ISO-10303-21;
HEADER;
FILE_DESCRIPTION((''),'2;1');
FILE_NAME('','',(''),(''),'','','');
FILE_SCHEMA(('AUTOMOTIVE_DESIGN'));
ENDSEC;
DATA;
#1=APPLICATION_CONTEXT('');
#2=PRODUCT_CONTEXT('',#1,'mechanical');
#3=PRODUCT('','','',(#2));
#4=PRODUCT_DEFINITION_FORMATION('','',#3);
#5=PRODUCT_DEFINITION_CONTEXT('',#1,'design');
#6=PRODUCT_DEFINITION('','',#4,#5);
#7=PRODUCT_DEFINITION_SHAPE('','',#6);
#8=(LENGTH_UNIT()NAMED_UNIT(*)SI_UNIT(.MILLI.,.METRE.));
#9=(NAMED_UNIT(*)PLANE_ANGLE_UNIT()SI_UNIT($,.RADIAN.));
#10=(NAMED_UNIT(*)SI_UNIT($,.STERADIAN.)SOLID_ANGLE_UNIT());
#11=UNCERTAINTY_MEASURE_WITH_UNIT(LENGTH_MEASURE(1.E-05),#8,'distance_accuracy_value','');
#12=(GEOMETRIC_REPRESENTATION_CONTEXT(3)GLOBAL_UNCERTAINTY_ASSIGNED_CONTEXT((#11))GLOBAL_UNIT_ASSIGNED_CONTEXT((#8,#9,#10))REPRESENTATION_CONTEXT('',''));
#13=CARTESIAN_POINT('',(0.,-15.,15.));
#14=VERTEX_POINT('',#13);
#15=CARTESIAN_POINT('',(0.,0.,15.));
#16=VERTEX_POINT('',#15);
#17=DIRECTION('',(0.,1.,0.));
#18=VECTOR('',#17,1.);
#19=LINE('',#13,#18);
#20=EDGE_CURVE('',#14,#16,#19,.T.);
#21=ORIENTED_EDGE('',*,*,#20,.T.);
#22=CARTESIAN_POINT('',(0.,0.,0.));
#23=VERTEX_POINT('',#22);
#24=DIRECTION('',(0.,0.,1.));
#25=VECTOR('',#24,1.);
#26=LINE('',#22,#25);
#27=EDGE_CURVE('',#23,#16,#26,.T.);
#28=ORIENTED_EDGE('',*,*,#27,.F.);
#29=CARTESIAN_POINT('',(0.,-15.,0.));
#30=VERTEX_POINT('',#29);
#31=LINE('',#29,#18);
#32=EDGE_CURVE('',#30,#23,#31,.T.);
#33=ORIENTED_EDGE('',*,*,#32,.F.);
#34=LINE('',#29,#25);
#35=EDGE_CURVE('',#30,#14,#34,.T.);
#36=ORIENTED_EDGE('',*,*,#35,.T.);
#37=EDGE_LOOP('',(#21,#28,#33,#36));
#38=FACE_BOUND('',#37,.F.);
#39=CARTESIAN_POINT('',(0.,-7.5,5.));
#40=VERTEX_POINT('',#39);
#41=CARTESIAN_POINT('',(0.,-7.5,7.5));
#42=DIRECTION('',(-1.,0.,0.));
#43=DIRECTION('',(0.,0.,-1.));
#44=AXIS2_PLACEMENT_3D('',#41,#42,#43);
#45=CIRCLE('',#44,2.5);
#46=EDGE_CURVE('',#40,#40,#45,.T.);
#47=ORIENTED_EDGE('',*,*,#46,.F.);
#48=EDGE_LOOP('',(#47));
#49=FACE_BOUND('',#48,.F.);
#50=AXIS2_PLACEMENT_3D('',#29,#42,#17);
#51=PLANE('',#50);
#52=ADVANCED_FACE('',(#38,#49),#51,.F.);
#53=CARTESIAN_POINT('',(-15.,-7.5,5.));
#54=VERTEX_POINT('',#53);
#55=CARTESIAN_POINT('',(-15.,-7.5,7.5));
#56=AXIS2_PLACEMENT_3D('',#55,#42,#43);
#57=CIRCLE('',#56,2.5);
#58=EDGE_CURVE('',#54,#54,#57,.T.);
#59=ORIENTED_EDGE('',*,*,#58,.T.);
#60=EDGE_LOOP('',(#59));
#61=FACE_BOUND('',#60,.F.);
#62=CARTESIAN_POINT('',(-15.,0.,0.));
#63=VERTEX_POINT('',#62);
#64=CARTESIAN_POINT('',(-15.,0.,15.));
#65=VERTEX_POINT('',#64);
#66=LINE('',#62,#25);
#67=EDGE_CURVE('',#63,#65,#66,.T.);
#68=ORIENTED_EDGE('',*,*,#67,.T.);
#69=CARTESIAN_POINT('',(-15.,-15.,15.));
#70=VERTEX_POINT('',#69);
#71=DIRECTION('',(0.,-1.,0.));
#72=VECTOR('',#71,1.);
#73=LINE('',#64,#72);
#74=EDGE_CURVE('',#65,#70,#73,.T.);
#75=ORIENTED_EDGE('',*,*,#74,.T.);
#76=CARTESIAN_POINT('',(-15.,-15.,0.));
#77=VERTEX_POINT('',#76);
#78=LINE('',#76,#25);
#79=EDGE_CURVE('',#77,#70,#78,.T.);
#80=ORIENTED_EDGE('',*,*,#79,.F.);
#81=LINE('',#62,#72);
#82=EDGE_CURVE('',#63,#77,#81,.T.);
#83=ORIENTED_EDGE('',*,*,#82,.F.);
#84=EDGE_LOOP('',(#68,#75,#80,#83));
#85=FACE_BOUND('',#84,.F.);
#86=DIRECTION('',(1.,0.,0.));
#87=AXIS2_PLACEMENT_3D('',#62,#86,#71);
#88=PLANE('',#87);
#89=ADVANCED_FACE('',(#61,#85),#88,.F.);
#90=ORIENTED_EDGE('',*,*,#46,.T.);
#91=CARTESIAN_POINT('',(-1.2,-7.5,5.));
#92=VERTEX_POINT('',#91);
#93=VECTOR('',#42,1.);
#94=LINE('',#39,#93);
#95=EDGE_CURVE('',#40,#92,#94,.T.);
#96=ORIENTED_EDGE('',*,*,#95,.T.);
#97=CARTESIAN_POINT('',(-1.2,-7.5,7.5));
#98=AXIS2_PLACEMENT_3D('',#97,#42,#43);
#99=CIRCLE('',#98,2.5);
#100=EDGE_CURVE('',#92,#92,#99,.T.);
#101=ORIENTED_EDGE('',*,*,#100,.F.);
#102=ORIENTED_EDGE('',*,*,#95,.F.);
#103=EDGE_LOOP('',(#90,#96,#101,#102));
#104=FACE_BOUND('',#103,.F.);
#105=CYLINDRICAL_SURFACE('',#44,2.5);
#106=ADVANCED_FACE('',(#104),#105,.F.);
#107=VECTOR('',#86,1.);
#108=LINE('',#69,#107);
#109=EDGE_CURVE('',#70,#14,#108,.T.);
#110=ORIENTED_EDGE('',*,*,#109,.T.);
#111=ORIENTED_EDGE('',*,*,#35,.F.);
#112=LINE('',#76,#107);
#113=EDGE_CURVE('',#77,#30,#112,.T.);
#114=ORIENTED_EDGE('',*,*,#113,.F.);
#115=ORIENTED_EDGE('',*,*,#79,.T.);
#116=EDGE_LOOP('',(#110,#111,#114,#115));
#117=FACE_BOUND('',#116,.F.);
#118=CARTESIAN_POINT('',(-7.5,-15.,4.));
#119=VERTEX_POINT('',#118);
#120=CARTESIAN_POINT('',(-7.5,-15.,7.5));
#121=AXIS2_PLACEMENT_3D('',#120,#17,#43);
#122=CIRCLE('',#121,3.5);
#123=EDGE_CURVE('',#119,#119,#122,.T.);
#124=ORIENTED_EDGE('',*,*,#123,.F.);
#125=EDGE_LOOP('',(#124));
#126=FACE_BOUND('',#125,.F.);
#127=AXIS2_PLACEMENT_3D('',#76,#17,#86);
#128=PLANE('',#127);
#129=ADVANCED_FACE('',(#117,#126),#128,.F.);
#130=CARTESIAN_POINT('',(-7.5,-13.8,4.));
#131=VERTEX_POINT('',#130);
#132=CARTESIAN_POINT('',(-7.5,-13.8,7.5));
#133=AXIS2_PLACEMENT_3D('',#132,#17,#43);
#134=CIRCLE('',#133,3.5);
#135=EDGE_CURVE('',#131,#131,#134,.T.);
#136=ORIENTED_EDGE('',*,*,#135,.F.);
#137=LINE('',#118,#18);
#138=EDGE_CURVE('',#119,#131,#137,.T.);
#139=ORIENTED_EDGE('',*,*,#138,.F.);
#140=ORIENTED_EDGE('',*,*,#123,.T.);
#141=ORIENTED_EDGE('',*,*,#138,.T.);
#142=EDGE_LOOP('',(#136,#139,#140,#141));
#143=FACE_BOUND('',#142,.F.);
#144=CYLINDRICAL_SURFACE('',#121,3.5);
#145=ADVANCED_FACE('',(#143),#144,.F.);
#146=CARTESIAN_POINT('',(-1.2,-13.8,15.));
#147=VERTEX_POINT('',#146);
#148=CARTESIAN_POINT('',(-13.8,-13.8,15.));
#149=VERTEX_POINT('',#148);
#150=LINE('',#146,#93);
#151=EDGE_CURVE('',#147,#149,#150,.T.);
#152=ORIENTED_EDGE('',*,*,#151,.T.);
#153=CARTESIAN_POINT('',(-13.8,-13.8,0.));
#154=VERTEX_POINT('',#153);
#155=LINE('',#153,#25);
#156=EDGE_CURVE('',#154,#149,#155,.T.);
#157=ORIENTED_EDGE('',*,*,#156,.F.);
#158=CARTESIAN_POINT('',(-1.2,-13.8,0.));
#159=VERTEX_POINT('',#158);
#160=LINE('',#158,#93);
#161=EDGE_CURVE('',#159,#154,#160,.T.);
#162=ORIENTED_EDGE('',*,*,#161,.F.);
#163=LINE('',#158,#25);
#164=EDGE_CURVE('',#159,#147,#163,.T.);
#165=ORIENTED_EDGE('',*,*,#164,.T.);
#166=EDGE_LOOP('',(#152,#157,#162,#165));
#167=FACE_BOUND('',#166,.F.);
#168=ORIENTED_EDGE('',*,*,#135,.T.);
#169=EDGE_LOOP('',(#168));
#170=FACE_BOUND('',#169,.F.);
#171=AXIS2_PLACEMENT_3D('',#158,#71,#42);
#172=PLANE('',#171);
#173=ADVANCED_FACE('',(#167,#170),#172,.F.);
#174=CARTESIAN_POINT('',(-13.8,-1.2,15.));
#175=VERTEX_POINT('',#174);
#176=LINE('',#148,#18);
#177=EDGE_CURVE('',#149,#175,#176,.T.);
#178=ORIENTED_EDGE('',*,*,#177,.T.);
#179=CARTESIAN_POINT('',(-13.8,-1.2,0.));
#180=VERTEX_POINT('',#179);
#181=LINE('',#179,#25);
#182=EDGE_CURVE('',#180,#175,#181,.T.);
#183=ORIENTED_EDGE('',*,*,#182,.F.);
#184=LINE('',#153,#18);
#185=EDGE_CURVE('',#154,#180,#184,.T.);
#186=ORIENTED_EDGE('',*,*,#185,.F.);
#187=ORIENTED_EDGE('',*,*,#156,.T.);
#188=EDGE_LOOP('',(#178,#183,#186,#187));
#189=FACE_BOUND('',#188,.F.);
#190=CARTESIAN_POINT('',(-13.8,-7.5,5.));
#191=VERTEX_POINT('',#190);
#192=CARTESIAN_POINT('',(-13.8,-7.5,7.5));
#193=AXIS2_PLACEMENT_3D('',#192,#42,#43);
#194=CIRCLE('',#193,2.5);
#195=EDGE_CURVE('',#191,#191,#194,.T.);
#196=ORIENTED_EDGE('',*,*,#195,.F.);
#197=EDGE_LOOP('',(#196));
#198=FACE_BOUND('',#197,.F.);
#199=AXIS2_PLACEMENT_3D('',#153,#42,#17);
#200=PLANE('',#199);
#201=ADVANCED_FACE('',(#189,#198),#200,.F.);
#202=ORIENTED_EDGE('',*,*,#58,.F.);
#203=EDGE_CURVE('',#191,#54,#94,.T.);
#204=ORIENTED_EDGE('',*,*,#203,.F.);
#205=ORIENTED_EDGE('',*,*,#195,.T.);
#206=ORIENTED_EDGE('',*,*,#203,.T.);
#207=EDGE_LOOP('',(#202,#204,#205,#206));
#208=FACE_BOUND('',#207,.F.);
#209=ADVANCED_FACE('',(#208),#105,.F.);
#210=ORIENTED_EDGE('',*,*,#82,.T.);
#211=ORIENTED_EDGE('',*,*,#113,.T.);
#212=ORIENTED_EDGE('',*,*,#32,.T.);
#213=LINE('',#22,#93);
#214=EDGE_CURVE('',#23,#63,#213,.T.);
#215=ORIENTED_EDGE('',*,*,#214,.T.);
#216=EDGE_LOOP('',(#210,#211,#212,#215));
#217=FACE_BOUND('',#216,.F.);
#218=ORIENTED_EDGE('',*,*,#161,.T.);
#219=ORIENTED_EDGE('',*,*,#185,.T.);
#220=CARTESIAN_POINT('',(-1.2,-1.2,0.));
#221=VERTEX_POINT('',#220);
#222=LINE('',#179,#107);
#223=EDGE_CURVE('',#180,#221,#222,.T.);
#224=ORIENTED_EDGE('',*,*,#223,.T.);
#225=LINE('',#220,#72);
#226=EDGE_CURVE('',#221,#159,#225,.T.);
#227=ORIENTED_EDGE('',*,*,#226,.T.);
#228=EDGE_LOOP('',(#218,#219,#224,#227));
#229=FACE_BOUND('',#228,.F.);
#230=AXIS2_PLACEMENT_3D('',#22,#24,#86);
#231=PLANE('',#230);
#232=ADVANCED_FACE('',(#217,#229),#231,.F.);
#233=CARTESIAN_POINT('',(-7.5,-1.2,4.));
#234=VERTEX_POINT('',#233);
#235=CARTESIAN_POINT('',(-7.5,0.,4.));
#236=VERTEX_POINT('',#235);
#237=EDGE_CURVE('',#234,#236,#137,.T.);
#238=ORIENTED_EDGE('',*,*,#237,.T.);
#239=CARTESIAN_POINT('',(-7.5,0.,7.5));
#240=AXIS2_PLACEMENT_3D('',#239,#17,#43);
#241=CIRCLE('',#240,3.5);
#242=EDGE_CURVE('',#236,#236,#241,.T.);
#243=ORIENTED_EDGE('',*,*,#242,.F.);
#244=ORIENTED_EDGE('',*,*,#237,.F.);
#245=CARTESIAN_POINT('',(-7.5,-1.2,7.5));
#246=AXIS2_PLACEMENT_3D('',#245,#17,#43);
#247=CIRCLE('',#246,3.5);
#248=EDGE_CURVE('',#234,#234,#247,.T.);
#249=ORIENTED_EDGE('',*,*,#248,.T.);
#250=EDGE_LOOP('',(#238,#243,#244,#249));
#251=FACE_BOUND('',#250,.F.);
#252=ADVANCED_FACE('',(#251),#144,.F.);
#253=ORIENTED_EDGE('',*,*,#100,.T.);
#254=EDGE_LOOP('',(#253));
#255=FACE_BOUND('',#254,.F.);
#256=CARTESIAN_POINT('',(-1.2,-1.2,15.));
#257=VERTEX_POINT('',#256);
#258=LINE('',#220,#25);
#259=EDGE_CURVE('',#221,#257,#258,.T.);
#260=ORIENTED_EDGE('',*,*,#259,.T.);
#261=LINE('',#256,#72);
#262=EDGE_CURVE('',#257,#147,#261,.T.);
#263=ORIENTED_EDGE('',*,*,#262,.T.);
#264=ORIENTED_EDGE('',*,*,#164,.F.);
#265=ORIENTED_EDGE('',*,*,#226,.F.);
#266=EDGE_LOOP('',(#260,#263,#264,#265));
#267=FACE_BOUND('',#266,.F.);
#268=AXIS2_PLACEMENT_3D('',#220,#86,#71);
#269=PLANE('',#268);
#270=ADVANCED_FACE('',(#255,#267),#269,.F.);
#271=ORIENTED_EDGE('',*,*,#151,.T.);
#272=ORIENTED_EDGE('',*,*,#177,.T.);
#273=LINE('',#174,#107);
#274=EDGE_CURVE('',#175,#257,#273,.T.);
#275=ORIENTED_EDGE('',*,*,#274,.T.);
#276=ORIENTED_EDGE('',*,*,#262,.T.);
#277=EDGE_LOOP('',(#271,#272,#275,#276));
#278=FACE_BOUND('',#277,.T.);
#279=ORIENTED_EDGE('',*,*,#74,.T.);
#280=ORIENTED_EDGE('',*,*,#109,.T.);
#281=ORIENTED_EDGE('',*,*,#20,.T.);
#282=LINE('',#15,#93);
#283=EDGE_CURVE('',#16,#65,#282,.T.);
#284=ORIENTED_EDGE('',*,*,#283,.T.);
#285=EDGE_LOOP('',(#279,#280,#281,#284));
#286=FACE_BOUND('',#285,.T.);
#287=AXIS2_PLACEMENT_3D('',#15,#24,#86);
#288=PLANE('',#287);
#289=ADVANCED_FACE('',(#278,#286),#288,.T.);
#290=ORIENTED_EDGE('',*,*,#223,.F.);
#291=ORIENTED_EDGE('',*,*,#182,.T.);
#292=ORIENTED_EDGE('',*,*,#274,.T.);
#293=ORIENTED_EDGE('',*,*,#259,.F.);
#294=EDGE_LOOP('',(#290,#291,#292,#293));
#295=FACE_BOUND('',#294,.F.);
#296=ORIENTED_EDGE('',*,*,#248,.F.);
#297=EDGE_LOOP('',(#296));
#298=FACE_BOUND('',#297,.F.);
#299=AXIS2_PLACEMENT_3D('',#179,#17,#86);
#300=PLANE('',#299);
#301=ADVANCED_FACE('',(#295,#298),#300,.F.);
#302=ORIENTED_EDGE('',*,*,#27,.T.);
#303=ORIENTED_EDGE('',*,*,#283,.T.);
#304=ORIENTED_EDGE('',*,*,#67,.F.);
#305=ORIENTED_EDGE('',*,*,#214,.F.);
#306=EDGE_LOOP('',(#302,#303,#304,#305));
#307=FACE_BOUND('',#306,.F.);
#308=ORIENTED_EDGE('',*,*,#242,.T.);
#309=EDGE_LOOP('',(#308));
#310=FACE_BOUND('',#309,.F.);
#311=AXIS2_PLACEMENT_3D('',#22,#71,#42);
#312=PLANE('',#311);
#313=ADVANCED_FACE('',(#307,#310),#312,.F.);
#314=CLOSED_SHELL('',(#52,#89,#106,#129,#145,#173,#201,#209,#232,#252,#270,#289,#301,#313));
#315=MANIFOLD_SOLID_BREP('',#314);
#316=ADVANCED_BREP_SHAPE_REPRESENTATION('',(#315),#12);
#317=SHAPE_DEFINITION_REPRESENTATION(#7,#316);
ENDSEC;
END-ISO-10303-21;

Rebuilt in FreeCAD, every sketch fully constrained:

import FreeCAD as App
import Part
import Sketcher
from FreeCAD import Vector

doc = App.newDocument("Part")
body = doc.addObject("PartDesign::Body", "Body")

sketch1 = body.newObject("Sketcher::SketchObject", "Sketch")
sketch1.AttachmentSupport = (doc.getObject("XY_Plane"), [""])
sketch1.MapMode = "FlatFace"
sketch1.addGeometry([
    Part.LineSegment(Vector(0, -15, 0), Vector(0, 0, 0)),
    Part.LineSegment(Vector(0, 0, 0), Vector(-15, 0, 0)),
    Part.LineSegment(Vector(-15, 0, 0), Vector(-15, -15, 0)),
    Part.LineSegment(Vector(-15, -15, 0), Vector(0, -15, 0)),
    Part.LineSegment(Vector(-14, -14, 0), Vector(-14, -1, 0)),
    Part.LineSegment(Vector(-14, -1, 0), Vector(-1, -1, 0)),
    Part.LineSegment(Vector(-1, -1, 0), Vector(-1, -14, 0)),
    Part.LineSegment(Vector(-1, -14, 0), Vector(-14, -14, 0)),
], False)
sketch1.addConstraint([
    Sketcher.Constraint("Coincident", 0, 2, 1, 1),
    Sketcher.Constraint("Coincident", 1, 2, 2, 1),
    Sketcher.Constraint("Coincident", 2, 2, 3, 1),
    Sketcher.Constraint("Coincident", 3, 2, 0, 1),
    Sketcher.Constraint("Coincident", 4, 2, 5, 1),
    Sketcher.Constraint("Coincident", 5, 2, 6, 1),
    Sketcher.Constraint("Coincident", 6, 2, 7, 1),
    Sketcher.Constraint("Coincident", 7, 2, 4, 1),
    Sketcher.Constraint("Vertical", 0),
    Sketcher.Constraint("Horizontal", 1),
    Sketcher.Constraint("Vertical", 2),
    Sketcher.Constraint("Horizontal", 3),
    Sketcher.Constraint("Vertical", 4),
    Sketcher.Constraint("Horizontal", 5),
    Sketcher.Constraint("Vertical", 6),
    Sketcher.Constraint("Horizontal", 7),
    Sketcher.Constraint("Coincident", 0, 2, -1, 1),
    Sketcher.Constraint("Equal", 3, 0),
    Sketcher.Constraint("Equal", 7, 4),
    Sketcher.Constraint("DistanceX", 1, 2, 1, 1, 15.0),
    Sketcher.Constraint("DistanceY", 4, 2, -1, 1, 1.2),
    Sketcher.Constraint("DistanceX", 5, 2, -1, 1, 1.2),
    Sketcher.Constraint("DistanceX", 1, 2, 4, 2, 1.2),
])
pad1 = body.newObject("PartDesign::Pad", "Pad")
pad1.Profile = sketch1
pad1.Length = 15

sketch2 = body.newObject("Sketcher::SketchObject", "Sketch001")
sketch2.AttachmentSupport = (doc.getObject("YZ_Plane"), [""])
sketch2.MapMode = "FlatFace"
sketch2.addGeometry(Part.Circle(Vector(-7.5, 7.5, 0), Vector(0, 0, 1), 2.5), False)
sketch2.addConstraint([
    Sketcher.Constraint("Diameter", 0, 5.0),
    Sketcher.Constraint("DistanceX", 0, 3, -1, 1, 7.5),
    Sketcher.Constraint("DistanceY", -1, 1, 0, 3, 7.5),
])
doc.recompute()
hole = body.newObject("PartDesign::Hole", "Hole")
hole.Profile = sketch2
hole.ThreadType = "None"
hole.Diameter = 5
hole.DepthType = "ThroughAll"

sketch3 = body.newObject("Sketcher::SketchObject", "Sketch002")
sketch3.AttachmentSupport = (doc.getObject("XZ_Plane"), [""])
sketch3.MapMode = "FlatFace"
sketch3.AttachmentOffset = App.Placement(Vector(0, 0, 15), App.Rotation())
sketch3.addGeometry(Part.Circle(Vector(-7.5, 7.5, 0), Vector(0, 0, 1), 3.5), False)
sketch3.addConstraint([
    Sketcher.Constraint("Diameter", 0, 7.0),
    Sketcher.Constraint("DistanceX", 0, 3, -1, 1, 7.5),
    Sketcher.Constraint("DistanceY", -1, 1, 0, 3, 7.5),
])
doc.recompute()
hole2 = body.newObject("PartDesign::Hole", "Hole001")
hole2.Profile = sketch3
hole2.ThreadType = "None"
hole2.Diameter = 7
hole2.DepthType = "ThroughAll"

doc.recompute()
